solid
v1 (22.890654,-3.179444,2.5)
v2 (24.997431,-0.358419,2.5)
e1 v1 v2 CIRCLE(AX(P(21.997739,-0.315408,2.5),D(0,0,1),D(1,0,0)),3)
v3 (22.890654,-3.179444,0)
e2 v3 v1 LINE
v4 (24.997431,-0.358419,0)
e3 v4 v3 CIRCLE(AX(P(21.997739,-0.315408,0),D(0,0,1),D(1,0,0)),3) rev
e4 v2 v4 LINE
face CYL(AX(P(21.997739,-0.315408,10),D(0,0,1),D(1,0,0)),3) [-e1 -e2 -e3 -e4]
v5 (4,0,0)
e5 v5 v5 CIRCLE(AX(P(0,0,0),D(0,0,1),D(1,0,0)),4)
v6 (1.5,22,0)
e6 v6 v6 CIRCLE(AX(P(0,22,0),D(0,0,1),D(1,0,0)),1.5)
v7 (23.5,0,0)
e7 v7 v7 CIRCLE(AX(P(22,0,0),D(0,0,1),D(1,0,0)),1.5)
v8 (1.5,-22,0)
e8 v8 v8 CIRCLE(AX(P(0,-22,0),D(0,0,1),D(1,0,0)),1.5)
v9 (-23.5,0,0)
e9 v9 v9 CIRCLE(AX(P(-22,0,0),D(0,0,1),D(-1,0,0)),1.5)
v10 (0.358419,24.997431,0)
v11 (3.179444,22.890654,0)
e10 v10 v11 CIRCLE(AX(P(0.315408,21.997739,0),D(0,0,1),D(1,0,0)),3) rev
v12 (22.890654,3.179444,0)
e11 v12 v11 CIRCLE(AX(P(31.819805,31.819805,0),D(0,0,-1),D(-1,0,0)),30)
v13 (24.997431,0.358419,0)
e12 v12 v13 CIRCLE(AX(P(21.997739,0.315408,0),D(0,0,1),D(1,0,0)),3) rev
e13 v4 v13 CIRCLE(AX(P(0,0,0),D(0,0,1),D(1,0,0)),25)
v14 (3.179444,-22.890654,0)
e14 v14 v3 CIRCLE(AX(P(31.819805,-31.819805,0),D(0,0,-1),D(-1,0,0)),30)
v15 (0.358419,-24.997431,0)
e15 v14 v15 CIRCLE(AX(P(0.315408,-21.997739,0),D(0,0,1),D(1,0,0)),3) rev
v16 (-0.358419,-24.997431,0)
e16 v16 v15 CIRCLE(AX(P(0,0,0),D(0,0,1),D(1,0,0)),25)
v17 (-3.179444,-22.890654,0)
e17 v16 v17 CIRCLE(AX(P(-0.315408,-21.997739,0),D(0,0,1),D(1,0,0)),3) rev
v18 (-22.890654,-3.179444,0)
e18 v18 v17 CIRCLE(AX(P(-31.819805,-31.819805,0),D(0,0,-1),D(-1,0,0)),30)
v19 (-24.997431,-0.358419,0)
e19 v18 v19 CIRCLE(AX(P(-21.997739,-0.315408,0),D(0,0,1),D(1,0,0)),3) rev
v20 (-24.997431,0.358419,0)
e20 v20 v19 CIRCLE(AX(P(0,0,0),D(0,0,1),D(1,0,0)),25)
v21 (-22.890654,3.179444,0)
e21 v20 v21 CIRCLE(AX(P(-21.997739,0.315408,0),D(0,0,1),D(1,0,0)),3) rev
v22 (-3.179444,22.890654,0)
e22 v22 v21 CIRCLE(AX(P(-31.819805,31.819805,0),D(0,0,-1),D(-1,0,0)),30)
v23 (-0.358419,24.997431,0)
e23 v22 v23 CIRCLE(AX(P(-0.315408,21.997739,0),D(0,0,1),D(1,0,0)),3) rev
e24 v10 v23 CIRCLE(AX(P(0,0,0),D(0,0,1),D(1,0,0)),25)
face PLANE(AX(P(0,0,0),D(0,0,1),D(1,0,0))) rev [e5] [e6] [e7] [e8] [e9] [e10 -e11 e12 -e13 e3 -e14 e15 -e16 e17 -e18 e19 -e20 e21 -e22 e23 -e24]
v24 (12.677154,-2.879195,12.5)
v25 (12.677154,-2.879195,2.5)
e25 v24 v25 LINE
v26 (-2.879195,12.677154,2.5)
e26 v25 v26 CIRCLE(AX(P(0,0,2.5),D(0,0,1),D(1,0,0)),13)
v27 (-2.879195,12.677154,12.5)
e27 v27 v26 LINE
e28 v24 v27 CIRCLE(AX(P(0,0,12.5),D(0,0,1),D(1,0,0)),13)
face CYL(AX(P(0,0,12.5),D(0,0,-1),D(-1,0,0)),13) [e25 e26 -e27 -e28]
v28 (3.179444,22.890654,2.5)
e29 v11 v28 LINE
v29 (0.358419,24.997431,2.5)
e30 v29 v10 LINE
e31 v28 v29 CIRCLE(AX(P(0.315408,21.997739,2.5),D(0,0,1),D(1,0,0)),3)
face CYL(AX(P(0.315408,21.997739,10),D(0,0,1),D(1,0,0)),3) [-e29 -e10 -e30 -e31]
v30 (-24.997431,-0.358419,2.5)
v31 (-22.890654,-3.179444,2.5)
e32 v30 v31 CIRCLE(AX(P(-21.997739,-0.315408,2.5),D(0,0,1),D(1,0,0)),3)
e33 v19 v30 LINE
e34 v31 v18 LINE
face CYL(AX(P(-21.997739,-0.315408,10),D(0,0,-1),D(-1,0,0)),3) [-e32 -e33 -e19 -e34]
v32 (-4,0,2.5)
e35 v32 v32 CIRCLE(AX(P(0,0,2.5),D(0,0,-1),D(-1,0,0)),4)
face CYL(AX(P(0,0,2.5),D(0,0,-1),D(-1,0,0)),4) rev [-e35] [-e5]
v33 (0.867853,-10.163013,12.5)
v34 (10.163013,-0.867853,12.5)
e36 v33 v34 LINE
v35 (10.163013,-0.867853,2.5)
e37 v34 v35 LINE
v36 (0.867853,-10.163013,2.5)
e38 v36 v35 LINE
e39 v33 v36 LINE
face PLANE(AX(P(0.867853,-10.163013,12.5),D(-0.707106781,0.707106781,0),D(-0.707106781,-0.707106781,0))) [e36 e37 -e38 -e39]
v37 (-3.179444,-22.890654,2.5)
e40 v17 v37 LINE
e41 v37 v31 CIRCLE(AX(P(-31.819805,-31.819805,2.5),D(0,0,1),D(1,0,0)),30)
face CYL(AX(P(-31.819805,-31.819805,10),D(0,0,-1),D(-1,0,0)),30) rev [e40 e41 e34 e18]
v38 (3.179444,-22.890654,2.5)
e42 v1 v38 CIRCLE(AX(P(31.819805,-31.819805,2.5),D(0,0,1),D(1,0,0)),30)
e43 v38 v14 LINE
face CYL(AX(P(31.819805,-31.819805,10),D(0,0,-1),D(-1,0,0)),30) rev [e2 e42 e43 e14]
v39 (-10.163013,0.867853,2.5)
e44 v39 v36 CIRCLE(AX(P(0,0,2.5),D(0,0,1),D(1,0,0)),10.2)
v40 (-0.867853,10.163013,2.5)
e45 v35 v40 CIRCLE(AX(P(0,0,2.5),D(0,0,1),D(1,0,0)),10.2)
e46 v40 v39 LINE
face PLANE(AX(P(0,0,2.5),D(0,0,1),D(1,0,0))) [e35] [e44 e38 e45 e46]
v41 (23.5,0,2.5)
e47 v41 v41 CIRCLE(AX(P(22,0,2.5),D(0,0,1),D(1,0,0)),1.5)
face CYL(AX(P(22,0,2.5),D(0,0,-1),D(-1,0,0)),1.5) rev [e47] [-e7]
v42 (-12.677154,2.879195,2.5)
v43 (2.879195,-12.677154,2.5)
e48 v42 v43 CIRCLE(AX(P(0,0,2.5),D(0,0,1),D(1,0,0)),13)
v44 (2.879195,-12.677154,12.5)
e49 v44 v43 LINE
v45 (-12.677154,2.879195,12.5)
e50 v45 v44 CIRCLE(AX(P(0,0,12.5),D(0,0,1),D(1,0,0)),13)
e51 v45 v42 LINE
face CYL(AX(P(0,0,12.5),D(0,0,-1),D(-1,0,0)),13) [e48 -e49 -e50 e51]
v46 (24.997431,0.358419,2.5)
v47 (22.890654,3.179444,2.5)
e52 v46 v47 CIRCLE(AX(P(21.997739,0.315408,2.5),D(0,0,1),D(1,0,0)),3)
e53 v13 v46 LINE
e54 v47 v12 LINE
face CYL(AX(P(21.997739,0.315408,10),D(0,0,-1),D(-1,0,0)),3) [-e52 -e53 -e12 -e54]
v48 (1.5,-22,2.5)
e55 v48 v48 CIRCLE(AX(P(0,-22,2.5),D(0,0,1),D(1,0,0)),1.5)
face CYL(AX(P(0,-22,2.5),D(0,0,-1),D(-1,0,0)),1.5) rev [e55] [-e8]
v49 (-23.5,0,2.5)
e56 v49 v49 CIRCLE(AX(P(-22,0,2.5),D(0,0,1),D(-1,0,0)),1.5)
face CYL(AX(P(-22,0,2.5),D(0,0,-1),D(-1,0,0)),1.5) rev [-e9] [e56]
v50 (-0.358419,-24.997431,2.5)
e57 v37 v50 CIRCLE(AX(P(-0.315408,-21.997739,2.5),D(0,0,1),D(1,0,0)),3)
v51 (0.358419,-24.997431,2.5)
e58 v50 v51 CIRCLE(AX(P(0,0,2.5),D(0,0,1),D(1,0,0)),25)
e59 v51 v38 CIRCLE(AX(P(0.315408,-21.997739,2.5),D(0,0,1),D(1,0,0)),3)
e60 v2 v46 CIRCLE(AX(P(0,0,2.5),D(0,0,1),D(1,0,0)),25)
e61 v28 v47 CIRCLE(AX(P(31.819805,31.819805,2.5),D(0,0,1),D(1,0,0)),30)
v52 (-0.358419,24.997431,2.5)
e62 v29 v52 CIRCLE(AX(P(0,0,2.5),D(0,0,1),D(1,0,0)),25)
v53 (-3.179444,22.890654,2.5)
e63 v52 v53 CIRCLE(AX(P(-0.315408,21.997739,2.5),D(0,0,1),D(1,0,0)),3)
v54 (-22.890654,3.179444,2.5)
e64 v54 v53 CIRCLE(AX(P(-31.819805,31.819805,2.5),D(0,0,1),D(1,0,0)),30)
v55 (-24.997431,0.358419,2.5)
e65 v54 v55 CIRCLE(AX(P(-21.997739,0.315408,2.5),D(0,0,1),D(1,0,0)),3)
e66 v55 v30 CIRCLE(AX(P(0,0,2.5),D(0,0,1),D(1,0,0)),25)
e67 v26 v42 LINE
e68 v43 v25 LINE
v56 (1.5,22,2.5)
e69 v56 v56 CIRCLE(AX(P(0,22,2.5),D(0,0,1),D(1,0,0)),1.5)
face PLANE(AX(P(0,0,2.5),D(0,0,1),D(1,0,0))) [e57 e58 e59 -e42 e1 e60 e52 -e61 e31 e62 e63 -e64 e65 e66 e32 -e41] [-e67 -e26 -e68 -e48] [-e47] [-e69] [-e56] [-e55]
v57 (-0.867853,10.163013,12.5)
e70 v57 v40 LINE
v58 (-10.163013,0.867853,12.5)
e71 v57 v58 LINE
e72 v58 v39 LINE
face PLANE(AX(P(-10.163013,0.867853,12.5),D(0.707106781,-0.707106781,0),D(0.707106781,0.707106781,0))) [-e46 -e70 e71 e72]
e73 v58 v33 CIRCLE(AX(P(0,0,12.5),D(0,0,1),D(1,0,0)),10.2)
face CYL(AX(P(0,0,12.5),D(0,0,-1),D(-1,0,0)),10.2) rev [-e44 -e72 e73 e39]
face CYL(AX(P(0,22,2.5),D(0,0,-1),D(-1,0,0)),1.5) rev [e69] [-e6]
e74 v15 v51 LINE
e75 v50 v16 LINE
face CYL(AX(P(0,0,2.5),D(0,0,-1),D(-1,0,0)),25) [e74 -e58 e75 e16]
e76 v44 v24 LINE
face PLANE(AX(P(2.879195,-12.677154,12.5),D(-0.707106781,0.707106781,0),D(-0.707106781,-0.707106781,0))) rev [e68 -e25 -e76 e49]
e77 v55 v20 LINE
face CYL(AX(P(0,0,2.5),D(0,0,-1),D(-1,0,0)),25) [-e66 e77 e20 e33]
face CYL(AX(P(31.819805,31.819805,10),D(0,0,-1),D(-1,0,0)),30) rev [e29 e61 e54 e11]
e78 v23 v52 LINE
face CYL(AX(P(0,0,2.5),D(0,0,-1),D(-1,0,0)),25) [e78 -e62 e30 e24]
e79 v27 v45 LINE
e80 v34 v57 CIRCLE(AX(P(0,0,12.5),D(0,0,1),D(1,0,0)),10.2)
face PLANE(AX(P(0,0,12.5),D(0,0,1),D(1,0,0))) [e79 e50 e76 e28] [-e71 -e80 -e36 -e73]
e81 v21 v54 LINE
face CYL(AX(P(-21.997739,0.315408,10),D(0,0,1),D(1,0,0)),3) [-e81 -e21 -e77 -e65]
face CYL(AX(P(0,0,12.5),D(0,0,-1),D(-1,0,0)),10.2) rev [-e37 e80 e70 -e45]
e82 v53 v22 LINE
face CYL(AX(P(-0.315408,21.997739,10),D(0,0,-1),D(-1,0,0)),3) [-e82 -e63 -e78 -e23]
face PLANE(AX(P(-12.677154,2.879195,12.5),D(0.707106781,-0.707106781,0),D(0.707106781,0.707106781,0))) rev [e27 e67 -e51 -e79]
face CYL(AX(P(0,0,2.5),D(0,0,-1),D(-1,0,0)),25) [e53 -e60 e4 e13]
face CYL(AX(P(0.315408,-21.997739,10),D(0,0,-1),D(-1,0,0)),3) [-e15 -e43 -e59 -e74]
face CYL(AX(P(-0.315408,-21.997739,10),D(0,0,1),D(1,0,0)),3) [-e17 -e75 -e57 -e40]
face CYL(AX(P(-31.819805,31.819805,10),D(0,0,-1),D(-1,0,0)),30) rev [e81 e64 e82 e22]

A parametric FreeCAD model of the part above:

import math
import FreeCAD as App
import Part
import Sketcher
from FreeCAD import Vector
Q = App.Units.Quantity


def edges_at(feature, points):
    """Names of the edges that pass closest to the given points."""
    edges = feature.Shape.Edges
    near = lambda p: min(range(len(edges)), key=lambda i: edges[i].distToShape(Part.Vertex(*p))[0])
    return sorted({f"Edge{near(p) + 1}" for p in points})

doc = App.newDocument("Part")
body = doc.addObject("PartDesign::Body", "Body")

# Sketch on XY plane
sketch1 = body.newObject("Sketcher::SketchObject", "Sketch")
sketch1.AttachmentSupport = (doc.getObject("XY_Plane"), [""])
sketch1.MapMode = "FlatFace"
sketch1.addGeometry(Part.Circle(Vector(0, 0, 0), Vector(0, 0, 1), 25), False)
sketch1.addGeometry(Part.Circle(Vector(0, -22, 0), Vector(0, 0, 1), 1.5), False)
sketch1.addGeometry(Part.Circle(Vector(-22, 0, 0), Vector(0, 0, 1), 1.5), False)
sketch1.addGeometry(Part.Circle(Vector(22, 0, 0), Vector(0, 0, 1), 1.5), False)
sketch1.addGeometry(Part.Circle(Vector(0, 22, 0), Vector(0, 0, 1), 1.5), False)
sketch1.addConstraint(Sketcher.Constraint("Coincident", 0, 3, -1, 1))
sketch1.addConstraint(Sketcher.Constraint("Equal", 1, 2))
sketch1.addConstraint(Sketcher.Constraint("Equal", 2, 3))
sketch1.addConstraint(Sketcher.Constraint("Equal", 3, 4))
sketch1.addConstraint(Sketcher.Constraint("Symmetric", 2, 3, 3, 3, -1, 1))
sketch1.addConstraint(Sketcher.Constraint("Symmetric", 1, 3, 4, 3, -1, 1))
sketch1.addConstraint(Sketcher.Constraint("PointOnObject", 1, 3, -2))
sketch1.addConstraint(Sketcher.Constraint("PointOnObject", 2, 3, -1))
sketch1.addConstraint(Sketcher.Constraint("Diameter", 0, Q("50 mm")))
sketch1.addConstraint(Sketcher.Constraint("Diameter", 1, Q("3 mm")))
sketch1.addConstraint(Sketcher.Constraint("DistanceY", 1, 3, -1, 1, Q("22 mm")))
sketch1.addConstraint(Sketcher.Constraint("DistanceX", 2, 3, -1, 1, Q("22 mm")))
pad1 = body.newObject("PartDesign::Pad", "Pad")
pad1.Profile = sketch1
pad1.Length = 2.5

# Sketch on XY plane
sketch2 = body.newObject("Sketcher::SketchObject", "Sketch001")
sketch2.AttachmentSupport = (doc.getObject("XY_Plane"), [""])
sketch2.MapMode = "FlatFace"
sketch2.addGeometry(Part.Circle(Vector(0, 0, 0), Vector(0, 0, 1), 4), False)
sketch2.addConstraint(Sketcher.Constraint("Coincident", 0, 3, -1, 1))
sketch2.addConstraint(Sketcher.Constraint("Diameter", 0, Q("8 mm")))
pocket1 = body.newObject("PartDesign::Pocket", "Pocket")
pocket1.Profile = sketch2
pocket1.Type = "ThroughAll"
pocket1.Midplane = True

# Sketch on XY plane
sketch3 = body.newObject("Sketcher::SketchObject", "Sketch002")
sketch3.AttachmentSupport = (doc.getObject("XY_Plane"), [""])
sketch3.MapMode = "FlatFace"
sketch3.addGeometry(Part.ArcOfCircle(Part.Circle(Vector(0, 0, 0), Vector(0, 0, 1), 25), math.radians(6), math.radians(84)), False)
sketch3.addGeometry(Part.ArcOfCircle(Part.Circle(Vector(32, 32, 0), Vector(0, 0, 1), 30), math.radians(-167), math.radians(-103)), False)
sketch3.addGeometry(Part.ArcOfCircle(Part.Circle(Vector(32, -32, 0), Vector(0, 0, 1), 30), math.radians(103), math.radians(167)), False)
sketch3.addGeometry(Part.ArcOfCircle(Part.Circle(Vector(0, 0, 0), Vector(0, 0, 1), 25), math.radians(-84), math.radians(-6)), False)
sketch3.addGeometry(Part.ArcOfCircle(Part.Circle(Vector(-32, -32, 0), Vector(0, 0, 1), 30), math.radians(13), math.radians(77)), False)
sketch3.addGeometry(Part.ArcOfCircle(Part.Circle(Vector(0, 0, 0), Vector(0, 0, 1), 25), math.radians(-174), math.radians(-96)), False)
sketch3.addGeometry(Part.ArcOfCircle(Part.Circle(Vector(0, 0, 0), Vector(0, 0, 1), 25), math.radians(96), math.radians(174)), False)
sketch3.addGeometry(Part.ArcOfCircle(Part.Circle(Vector(-32, 32, 0), Vector(0, 0, 1), 30), math.radians(-77), math.radians(-13)), False)
sketch3.addConstraint(Sketcher.Constraint("Coincident", 0, 1, 1, 2))
sketch3.addConstraint(Sketcher.Constraint("Coincident", 1, 1, 0, 2))
sketch3.addConstraint(Sketcher.Constraint("Coincident", 2, 1, 3, 2))
sketch3.addConstraint(Sketcher.Constraint("Coincident", 3, 1, 2, 2))
sketch3.addConstraint(Sketcher.Constraint("Coincident", 4, 1, 5, 2))
sketch3.addConstraint(Sketcher.Constraint("Coincident", 5, 1, 4, 2))
sketch3.addConstraint(Sketcher.Constraint("Coincident", 6, 1, 7, 2))
sketch3.addConstraint(Sketcher.Constraint("Coincident", 7, 1, 6, 2))
sketch3.addConstraint(Sketcher.Constraint("Coincident", 0, 3, -1, 1))
sketch3.addConstraint(Sketcher.Constraint("Coincident", 3, 3, -1, 1))
sketch3.addConstraint(Sketcher.Constraint("Coincident", 5, 3, -1, 1))
sketch3.addConstraint(Sketcher.Constraint("Coincident", 6, 3, -1, 1))
sketch3.addConstraint(Sketcher.Constraint("Equal", 1, 2))
sketch3.addConstraint(Sketcher.Constraint("Equal", 0, 3))
sketch3.addConstraint(Sketcher.Constraint("Equal", 2, 4))
sketch3.addConstraint(Sketcher.Constraint("Equal", 3, 5))
sketch3.addConstraint(Sketcher.Constraint("Equal", 5, 6))
sketch3.addConstraint(Sketcher.Constraint("Equal", 4, 7))
sketch3.addConstraint(Sketcher.Constraint("Symmetric", 1, 3, 4, 3, -1, 1))
sketch3.addConstraint(Sketcher.Constraint("Symmetric", 2, 3, 7, 3, -1, 1))
sketch3.addConstraint(Sketcher.Constraint("Symmetric", 2, 3, 4, 3, -2))
sketch3.addConstraint(Sketcher.Constraint("Radius", 0, Q("25 mm")))
sketch3.addConstraint(Sketcher.Constraint("Radius", 1, Q("30 mm")))
sketch3.addConstraint(Sketcher.Constraint("DistanceX", -1, 1, 0, 1, Q("24.86041 mm")))
sketch3.addConstraint(Sketcher.Constraint("DistanceY", 3, 1, -1, 1, Q("24.86041 mm")))
pocket2 = body.newObject("PartDesign::Pocket", "Pocket001")
pocket2.Profile = sketch3
pocket2.Length = 10
pocket2.Reversed = True
doc.recompute()

fillet = body.newObject("PartDesign::Fillet", "Fillet")
fillet.Base = (pocket2, edges_at(pocket2, [
    (2.638, 24.86, 1.25),
    (24.86, 2.638, 1.25),
    (24.86, -2.638, 1.25),
    (2.638, -24.86, 1.25),
    (-2.638, -24.86, 1.25),
    (-24.86, -2.638, 1.25),
    (-24.86, 2.638, 1.25),
    (-2.638, 24.86, 1.25),
]))
fillet.Radius = 3

# Sketch on XY plane
sketch4 = body.newObject("Sketcher::SketchObject", "Sketch003")
sketch4.AttachmentSupport = (doc.getObject("XY_Plane"), [""])
sketch4.MapMode = "FlatFace"
sketch4.AttachmentOffset = App.Placement(Vector(0, 0, 2.5), App.Rotation())
sketch4.addGeometry(Part.LineSegment(Vector(-3, 13, 0), Vector(-13, 3, 0)), False)
sketch4.addGeometry(Part.ArcOfCircle(Part.Circle(Vector(0, 0, 0), Vector(0, 0, 1), 13), math.radians(167), math.radians(283)), False)
sketch4.addGeometry(Part.LineSegment(Vector(3, -13, 0), Vector(13, -3, 0)), False)
sketch4.addGeometry(Part.ArcOfCircle(Part.Circle(Vector(0, 0, 0), Vector(0, 0, 1), 13), math.radians(-13), math.radians(103)), False)
sketch4.addGeometry(Part.LineSegment(Vector(-10, 1, 0), Vector(-1, 10, 0)), False)
sketch4.addGeometry(Part.ArcOfCircle(Part.Circle(Vector(0, 0, 0), Vector(0, 0, 1), 10), math.radians(-5), math.radians(95)), False)
sketch4.addGeometry(Part.LineSegment(Vector(10, -1, 0), Vector(1, -10, 0)), False)
sketch4.addGeometry(Part.ArcOfCircle(Part.Circle(Vector(0, 0, 0), Vector(0, 0, 1), 10), math.radians(175), math.radians(275)), False)
sketch4.addConstraint(Sketcher.Constraint("Coincident", 0, 2, 1, 1))
sketch4.addConstraint(Sketcher.Constraint("Coincident", 1, 2, 2, 1))
sketch4.addConstraint(Sketcher.Constraint("Coincident", 2, 2, 3, 1))
sketch4.addConstraint(Sketcher.Constraint("Coincident", 3, 2, 0, 1))
sketch4.addConstraint(Sketcher.Constraint("Coincident", 4, 2, 5, 2))
sketch4.addConstraint(Sketcher.Constraint("Coincident", 5, 1, 6, 1))
sketch4.addConstraint(Sketcher.Constraint("Coincident", 6, 2, 7, 2))
sketch4.addConstraint(Sketcher.Constraint("Coincident", 7, 1, 4, 1))
sketch4.addConstraint(Sketcher.Constraint("Coincident", 1, 3, -1, 1))
sketch4.addConstraint(Sketcher.Constraint("Coincident", 3, 3, -1, 1))
sketch4.addConstraint(Sketcher.Constraint("Coincident", 5, 3, -1, 1))
sketch4.addConstraint(Sketcher.Constraint("Coincident", 7, 3, -1, 1))
sketch4.addConstraint(Sketcher.Constraint("Equal", 1, 3))
sketch4.addConstraint(Sketcher.Constraint("Equal", 5, 7))
sketch4.addConstraint(Sketcher.Constraint("Parallel", 0, 2))
sketch4.addConstraint(Sketcher.Constraint("Parallel", 2, 4))
sketch4.addConstraint(Sketcher.Constraint("Parallel", 4, 6))
sketch4.addConstraint(Sketcher.Constraint("Equal", 0, 2))
sketch4.addConstraint(Sketcher.Constraint("Equal", 4, 6))
sketch4.addConstraint(Sketcher.Constraint("Radius", 1, Q("13 mm")))
sketch4.addConstraint(Sketcher.Constraint("Radius", 5, Q("10.2 mm")))
sketch4.addConstraint(Sketcher.Constraint("Angle", 0, Q("-135 deg")))
sketch4.addConstraint(Sketcher.Constraint("Distance", 4, Q("13.145341 mm")))
sketch4.addConstraint(Sketcher.Constraint("DistanceX", 0, 2, 1, 2, Q("15.556349 mm")))
pad2 = body.newObject("PartDesign::Pad", "Pad001")
pad2.Profile = sketch4
pad2.Length = 10

doc.recompute()
